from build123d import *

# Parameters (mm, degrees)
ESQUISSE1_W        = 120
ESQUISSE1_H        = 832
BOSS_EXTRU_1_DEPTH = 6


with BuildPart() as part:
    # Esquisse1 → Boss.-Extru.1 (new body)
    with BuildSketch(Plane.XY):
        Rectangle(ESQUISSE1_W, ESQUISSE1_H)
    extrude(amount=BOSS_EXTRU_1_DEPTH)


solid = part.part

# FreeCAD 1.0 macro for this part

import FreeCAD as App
import Part
import Sketcher
from FreeCAD import Vector
Q = App.Units.Quantity


def add_polygon(sketch, points):
    """Adds a closed chain of lines whose ends are joined by coincident constraints."""
    first, n = sketch.GeometryCount, len(points)
    for a, b in zip(points, points[1:] + points[:1]):
        sketch.addGeometry(Part.LineSegment(App.Vector(*a, 0), App.Vector(*b, 0)), False)
    for i in range(n):
        sketch.addConstraint(Sketcher.Constraint("Coincident", first + i, 2, first + (i + 1) % n, 1))

doc = App.newDocument("Part")
body = doc.addObject("PartDesign::Body", "Body")

sketch1 = body.newObject("Sketcher::SketchObject", "Sketch")
sketch1.AttachmentSupport = (doc.getObject("XY_Plane"), [""])
sketch1.MapMode = "FlatFace"
add_polygon(sketch1, [(-60, 416), (-60, -416), (60, -416), (60, 416)])
sketch1.addConstraint([
    Sketcher.Constraint("Vertical", 0),
    Sketcher.Constraint("Horizontal", 1),
    Sketcher.Constraint("Vertical", 2),
    Sketcher.Constraint("Horizontal", 3),
    Sketcher.Constraint("Symmetric", 0, 2, 2, 2, -1, 1),
    Sketcher.Constraint("DistanceX", 1, 1, 1, 2, Q("120 mm")),
    Sketcher.Constraint("DistanceY", 0, 2, 0, 1, Q("832 mm")),
])
pad1 = body.newObject("PartDesign::Pad", "Pad")
pad1.Profile = sketch1
pad1.Length = 6

doc.recompute()
